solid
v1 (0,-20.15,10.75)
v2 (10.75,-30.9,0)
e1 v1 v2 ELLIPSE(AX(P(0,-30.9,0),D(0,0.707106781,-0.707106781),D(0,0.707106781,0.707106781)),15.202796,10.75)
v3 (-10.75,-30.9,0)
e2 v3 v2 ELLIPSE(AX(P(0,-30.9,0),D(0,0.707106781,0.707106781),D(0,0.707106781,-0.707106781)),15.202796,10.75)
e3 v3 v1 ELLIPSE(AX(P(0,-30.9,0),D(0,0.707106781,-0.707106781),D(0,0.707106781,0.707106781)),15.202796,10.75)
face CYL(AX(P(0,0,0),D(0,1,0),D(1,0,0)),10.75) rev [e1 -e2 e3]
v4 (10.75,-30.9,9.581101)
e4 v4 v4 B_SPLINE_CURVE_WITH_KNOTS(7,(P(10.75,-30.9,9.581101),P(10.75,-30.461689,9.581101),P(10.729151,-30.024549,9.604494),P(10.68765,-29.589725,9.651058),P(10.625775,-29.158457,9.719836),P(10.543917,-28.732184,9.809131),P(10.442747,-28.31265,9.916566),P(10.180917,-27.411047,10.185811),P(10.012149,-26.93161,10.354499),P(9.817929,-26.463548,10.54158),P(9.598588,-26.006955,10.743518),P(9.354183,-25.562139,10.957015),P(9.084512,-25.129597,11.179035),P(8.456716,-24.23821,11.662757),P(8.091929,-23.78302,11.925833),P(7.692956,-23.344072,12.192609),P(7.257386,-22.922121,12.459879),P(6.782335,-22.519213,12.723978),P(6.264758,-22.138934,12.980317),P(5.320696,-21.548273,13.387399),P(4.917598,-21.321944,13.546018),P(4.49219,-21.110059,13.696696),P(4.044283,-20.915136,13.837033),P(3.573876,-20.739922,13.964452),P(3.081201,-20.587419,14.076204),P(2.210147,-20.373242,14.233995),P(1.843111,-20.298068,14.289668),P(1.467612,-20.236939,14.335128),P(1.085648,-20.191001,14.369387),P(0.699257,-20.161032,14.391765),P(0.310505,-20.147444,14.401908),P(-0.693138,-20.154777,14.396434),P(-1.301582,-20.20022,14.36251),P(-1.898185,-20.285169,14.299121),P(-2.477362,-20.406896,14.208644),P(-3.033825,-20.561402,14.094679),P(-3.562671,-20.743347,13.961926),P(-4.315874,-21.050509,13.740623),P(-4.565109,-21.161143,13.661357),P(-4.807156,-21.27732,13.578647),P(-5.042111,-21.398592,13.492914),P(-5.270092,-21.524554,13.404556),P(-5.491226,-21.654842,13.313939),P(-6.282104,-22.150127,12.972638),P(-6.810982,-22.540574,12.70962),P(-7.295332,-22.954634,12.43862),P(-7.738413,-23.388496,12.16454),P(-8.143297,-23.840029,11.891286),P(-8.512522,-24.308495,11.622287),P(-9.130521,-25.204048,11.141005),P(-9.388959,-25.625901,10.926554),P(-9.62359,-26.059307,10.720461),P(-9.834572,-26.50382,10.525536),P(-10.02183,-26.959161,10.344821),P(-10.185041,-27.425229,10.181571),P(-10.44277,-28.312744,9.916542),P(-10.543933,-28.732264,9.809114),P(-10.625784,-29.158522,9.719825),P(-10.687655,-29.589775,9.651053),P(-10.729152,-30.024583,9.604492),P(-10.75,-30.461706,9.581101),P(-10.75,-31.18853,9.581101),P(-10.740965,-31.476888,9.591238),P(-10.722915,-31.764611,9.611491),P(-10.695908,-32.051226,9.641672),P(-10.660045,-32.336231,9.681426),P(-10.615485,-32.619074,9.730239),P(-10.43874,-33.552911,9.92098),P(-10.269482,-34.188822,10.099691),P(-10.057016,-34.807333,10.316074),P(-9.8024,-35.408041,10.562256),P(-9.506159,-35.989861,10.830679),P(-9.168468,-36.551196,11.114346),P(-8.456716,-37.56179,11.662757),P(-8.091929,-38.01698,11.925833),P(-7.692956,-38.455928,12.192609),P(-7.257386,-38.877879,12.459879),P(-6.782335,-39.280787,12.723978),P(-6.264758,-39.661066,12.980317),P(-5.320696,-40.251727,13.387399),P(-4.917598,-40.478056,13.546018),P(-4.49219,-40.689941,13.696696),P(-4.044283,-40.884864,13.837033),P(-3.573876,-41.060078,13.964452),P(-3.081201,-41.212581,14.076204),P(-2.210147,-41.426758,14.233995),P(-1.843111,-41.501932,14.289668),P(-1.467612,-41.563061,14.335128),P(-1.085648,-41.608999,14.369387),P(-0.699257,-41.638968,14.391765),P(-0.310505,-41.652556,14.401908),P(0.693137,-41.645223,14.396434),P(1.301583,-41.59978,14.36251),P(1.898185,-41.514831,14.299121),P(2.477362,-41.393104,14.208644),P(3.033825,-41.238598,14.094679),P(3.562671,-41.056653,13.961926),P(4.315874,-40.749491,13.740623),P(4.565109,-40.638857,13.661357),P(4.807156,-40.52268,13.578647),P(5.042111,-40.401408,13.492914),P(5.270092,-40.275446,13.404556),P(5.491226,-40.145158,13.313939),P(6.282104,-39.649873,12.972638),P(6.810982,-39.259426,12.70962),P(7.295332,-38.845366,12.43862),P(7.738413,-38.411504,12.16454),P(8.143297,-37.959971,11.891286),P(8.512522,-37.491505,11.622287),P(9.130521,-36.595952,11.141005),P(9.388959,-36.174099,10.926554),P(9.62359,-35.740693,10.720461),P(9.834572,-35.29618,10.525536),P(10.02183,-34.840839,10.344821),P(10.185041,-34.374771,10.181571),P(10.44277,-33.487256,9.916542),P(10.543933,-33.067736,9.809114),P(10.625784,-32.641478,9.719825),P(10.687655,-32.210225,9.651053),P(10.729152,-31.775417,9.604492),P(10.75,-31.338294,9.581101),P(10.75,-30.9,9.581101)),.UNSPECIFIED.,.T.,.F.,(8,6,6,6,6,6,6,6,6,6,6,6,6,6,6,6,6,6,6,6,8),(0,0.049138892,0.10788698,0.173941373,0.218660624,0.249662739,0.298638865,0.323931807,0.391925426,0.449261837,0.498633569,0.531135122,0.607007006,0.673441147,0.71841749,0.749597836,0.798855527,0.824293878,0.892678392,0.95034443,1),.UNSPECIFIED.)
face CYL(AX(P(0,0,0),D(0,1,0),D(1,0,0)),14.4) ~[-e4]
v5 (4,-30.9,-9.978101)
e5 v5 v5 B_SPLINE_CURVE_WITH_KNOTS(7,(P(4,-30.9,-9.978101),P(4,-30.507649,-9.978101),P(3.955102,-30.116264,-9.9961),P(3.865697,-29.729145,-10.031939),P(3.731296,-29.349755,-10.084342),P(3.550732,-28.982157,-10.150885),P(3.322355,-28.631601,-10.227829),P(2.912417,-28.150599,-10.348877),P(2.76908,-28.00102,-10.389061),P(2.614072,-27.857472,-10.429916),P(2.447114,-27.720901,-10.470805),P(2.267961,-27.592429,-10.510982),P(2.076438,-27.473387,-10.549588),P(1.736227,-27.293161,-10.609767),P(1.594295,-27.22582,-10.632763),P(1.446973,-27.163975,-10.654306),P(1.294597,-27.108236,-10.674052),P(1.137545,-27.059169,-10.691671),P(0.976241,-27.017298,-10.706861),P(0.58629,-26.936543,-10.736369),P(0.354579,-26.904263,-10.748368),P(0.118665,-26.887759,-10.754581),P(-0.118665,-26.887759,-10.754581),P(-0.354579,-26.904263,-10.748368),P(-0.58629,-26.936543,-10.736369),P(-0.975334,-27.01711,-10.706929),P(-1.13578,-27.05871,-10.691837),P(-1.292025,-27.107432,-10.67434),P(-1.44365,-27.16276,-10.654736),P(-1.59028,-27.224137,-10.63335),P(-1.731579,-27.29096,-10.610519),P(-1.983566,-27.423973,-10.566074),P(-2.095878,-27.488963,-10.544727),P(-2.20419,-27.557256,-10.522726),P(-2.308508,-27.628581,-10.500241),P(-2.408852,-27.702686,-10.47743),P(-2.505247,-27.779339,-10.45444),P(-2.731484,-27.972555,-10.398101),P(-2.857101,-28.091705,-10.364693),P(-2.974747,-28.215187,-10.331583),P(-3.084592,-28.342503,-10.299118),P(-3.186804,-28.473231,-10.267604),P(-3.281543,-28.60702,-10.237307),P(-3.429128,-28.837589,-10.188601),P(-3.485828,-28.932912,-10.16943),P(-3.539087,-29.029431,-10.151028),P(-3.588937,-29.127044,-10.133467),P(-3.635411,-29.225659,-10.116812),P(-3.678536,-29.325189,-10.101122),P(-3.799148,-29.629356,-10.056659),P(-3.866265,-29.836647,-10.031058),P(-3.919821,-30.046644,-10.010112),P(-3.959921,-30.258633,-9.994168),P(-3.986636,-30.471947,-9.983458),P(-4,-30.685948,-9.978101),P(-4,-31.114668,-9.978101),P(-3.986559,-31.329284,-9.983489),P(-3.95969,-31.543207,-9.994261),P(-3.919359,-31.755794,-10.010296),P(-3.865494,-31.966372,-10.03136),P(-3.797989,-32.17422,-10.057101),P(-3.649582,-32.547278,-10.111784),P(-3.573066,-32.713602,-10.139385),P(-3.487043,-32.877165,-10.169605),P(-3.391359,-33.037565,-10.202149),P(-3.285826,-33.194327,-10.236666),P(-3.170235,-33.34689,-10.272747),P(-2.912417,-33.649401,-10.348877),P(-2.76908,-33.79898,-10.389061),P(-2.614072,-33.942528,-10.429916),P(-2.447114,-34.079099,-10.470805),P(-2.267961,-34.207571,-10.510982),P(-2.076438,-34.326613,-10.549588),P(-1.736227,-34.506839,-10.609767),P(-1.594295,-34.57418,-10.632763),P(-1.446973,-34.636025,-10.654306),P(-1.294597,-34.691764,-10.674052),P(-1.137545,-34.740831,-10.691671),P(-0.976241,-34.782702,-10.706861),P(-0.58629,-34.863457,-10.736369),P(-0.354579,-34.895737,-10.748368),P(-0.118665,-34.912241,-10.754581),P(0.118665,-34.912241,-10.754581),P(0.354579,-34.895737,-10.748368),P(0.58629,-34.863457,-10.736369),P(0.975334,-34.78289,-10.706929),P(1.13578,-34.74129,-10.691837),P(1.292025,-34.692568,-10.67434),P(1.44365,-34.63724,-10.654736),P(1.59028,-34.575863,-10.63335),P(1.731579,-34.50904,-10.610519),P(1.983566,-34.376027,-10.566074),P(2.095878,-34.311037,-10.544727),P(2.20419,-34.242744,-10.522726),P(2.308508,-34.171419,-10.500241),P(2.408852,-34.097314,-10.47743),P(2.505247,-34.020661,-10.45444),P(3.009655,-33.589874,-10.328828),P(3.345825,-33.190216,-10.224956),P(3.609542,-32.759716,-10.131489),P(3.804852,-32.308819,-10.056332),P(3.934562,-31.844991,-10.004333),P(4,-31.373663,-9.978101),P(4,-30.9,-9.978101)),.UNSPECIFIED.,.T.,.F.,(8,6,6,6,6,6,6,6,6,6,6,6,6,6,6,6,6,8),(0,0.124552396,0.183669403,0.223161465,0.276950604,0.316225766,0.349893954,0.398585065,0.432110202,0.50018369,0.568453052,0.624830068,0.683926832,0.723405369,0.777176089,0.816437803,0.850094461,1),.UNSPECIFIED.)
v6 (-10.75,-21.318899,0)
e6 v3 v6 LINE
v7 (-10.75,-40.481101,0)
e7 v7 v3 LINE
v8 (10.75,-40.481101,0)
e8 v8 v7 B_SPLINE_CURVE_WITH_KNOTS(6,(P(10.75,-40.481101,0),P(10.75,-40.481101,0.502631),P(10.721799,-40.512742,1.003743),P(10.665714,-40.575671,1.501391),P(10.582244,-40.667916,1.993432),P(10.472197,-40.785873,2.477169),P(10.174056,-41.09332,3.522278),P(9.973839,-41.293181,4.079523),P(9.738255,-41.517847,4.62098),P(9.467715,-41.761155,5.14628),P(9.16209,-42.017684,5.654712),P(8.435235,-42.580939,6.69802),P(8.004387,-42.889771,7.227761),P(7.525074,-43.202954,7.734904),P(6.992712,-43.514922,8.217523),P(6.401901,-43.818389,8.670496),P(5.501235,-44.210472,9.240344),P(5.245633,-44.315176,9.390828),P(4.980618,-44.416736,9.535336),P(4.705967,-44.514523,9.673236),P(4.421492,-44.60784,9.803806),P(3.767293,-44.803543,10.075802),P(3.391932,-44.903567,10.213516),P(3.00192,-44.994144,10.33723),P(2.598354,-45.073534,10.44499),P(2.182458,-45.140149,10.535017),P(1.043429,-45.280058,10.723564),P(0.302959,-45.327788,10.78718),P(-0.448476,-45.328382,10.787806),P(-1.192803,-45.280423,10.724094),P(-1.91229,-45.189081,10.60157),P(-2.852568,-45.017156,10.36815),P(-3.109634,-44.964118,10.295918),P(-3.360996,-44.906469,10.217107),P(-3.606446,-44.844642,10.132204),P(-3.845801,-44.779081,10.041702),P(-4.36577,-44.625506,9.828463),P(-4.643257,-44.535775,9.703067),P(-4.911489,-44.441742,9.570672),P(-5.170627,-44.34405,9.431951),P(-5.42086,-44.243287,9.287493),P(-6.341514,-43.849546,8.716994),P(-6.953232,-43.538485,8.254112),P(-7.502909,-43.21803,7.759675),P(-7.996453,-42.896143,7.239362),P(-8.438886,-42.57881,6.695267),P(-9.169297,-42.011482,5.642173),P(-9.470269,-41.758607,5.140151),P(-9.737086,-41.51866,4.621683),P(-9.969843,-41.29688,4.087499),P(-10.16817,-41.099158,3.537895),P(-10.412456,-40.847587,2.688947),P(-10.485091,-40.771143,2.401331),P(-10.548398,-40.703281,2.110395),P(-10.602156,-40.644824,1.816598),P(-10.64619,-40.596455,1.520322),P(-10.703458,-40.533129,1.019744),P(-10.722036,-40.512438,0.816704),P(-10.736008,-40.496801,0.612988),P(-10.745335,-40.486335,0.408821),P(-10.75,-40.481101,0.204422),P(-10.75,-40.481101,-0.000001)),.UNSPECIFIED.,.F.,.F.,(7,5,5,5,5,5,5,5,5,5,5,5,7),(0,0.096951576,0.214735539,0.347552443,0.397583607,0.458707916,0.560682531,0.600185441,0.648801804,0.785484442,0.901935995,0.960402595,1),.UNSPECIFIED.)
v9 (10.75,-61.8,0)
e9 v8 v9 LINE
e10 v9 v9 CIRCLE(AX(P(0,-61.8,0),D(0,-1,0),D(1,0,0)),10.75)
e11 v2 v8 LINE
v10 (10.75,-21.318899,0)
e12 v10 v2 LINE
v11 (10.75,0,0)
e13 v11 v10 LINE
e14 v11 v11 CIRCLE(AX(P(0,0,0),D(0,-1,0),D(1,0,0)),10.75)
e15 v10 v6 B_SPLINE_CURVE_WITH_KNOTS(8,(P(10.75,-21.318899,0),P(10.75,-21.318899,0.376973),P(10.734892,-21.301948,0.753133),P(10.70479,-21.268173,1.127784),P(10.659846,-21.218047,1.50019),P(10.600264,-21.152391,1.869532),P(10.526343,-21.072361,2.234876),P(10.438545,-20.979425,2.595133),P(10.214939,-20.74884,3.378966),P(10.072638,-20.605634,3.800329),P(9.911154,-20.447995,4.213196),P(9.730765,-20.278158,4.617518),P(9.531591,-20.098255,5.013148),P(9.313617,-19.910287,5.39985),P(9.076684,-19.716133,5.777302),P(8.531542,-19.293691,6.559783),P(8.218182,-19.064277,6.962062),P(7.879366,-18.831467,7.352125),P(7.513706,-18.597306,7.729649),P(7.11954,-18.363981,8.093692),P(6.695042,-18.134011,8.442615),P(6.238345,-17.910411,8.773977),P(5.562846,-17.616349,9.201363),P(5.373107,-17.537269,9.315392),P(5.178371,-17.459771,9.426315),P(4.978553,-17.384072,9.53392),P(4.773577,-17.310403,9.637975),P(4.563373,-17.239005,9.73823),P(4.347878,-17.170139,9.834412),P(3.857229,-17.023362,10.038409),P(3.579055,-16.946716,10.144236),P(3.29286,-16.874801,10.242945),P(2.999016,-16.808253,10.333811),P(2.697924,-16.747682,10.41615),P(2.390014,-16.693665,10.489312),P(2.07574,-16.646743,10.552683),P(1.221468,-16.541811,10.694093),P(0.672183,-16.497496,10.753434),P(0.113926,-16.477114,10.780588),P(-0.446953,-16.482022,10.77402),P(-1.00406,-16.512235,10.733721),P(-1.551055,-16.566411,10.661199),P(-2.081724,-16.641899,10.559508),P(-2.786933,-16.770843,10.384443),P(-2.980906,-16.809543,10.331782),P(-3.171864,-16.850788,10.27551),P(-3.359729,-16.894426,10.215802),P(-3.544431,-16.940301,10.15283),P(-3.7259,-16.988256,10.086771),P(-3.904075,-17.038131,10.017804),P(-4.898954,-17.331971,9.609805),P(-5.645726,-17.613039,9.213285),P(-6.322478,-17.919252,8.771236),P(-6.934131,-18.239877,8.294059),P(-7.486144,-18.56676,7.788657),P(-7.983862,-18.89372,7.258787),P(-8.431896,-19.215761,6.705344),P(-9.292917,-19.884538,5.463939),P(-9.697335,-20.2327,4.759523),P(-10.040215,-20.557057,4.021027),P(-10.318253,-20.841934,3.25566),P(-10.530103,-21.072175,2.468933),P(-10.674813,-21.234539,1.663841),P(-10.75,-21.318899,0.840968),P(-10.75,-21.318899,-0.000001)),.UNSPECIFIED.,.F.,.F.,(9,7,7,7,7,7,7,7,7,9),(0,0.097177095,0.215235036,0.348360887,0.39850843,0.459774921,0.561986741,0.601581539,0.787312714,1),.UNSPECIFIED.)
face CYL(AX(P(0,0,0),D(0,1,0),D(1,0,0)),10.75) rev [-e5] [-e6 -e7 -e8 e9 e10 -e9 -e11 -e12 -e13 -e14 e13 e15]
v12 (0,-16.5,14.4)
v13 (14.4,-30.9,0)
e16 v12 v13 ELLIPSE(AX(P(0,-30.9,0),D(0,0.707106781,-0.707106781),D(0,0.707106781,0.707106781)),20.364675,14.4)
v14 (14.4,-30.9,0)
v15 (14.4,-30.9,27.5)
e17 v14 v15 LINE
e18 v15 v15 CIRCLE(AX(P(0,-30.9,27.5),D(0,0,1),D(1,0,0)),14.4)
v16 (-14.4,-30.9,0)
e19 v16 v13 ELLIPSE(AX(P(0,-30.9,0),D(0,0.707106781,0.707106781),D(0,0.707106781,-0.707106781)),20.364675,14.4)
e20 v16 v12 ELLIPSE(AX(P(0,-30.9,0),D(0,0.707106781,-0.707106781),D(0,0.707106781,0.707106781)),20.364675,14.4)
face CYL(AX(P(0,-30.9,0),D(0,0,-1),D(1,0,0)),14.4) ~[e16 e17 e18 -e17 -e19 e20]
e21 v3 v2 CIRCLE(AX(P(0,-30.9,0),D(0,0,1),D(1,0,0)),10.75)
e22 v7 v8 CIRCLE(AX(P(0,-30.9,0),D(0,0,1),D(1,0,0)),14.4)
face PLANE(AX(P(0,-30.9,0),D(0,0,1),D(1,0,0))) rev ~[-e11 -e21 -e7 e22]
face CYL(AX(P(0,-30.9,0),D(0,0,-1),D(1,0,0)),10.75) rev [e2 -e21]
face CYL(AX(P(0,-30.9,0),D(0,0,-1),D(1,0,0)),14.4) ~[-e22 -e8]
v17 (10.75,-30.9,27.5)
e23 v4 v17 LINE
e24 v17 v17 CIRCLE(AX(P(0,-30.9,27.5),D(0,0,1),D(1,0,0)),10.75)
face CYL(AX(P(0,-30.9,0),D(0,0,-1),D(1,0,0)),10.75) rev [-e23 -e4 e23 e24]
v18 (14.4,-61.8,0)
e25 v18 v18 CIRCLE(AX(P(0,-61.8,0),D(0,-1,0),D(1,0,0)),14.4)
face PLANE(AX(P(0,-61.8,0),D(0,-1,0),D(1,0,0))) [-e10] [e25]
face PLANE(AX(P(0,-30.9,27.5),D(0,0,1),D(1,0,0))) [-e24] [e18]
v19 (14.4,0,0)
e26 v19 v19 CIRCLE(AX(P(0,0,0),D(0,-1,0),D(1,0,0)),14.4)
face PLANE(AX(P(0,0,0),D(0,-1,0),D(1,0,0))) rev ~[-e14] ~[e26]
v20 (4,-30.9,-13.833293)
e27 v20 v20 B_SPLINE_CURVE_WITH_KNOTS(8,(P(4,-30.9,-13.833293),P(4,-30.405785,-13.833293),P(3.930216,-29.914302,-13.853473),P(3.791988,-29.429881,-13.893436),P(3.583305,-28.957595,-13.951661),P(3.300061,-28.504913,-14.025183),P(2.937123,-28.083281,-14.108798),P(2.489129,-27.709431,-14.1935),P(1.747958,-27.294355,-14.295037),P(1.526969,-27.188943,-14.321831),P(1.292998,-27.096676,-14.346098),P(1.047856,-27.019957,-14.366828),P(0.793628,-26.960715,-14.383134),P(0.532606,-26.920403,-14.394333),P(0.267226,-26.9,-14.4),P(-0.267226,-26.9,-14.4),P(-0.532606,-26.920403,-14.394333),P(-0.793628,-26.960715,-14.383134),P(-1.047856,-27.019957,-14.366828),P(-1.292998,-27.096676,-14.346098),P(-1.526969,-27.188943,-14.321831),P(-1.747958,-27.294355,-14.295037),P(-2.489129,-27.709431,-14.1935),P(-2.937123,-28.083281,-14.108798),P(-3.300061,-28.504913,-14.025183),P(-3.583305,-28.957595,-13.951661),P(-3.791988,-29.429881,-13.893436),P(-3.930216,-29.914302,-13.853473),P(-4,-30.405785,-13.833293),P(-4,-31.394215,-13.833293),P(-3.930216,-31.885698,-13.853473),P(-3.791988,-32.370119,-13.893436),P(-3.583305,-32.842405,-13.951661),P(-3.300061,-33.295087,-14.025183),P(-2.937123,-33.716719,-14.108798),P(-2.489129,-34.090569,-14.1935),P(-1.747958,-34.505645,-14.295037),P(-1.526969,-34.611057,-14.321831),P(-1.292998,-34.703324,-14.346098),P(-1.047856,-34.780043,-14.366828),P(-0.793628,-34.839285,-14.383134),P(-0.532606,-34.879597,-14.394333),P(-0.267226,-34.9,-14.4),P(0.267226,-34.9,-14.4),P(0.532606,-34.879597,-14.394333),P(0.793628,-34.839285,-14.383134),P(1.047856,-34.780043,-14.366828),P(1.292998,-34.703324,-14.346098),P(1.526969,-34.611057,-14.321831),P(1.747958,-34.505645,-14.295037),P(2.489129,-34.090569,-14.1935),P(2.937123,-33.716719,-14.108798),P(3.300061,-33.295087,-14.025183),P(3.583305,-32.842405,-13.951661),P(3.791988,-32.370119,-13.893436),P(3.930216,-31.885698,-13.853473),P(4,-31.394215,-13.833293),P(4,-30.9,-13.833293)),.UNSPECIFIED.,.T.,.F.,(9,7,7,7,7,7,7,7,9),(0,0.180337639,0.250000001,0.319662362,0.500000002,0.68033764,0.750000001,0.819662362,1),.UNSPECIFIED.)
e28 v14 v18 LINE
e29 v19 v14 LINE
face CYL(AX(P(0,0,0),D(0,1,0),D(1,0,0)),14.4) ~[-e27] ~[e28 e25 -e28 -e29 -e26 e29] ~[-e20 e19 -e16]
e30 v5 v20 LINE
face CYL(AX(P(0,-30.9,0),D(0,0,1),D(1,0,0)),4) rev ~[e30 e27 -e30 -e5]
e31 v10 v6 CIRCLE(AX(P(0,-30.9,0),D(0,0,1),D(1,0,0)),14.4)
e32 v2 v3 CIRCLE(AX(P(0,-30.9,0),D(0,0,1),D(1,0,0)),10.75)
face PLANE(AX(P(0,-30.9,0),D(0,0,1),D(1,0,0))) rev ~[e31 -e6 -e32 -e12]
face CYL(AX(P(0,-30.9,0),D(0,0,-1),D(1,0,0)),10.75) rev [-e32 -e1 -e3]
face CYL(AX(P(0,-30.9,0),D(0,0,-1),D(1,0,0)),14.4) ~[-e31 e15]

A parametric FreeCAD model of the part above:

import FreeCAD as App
import Part
import Sketcher
from FreeCAD import Vector
Q = App.Units.Quantity

doc = App.newDocument("Part")
params = doc.addObject("Spreadsheet::Sheet", "Params")
for row, (alias, value) in enumerate([
    ("sketch1_diameter", "28.8 mm"),
    ("sketch1_diameter2", "21.5 mm"),
    ("pad1_length", "61.8 mm"),
    ("sketch2_diameter", "28.8 mm"),
    ("sketch2_diameter2", "21.5 mm"),
    ("pad2_length", "27.5 mm"),
    ("sketch3_diameter", "8 mm"),
], start=1):
    params.set(f"A{row}", alias)
    params.set(f"B{row}", "=" + value)
    params.setAlias(f"B{row}", alias)

body = doc.addObject("PartDesign::Body", "Body")

# Sketch on XZ plane
sketch1 = doc.addObject("Sketcher::SketchObject", "Sketch")
body.addObject(sketch1)
sketch1.AttachmentSupport = (doc.XZ_Plane, [""])
sketch1.MapMode = "FlatFace"
sketch1.addGeometry([
    Part.Circle(Vector(0, 0, 0), Vector(0, 0, 1), 14),
    Part.Circle(Vector(0, 0, 0), Vector(0, 0, 1), 11),
], False)
sketch1.addConstraint([
    Sketcher.Constraint("Coincident", 0, 3, -1, 1),
    Sketcher.Constraint("Coincident", 1, 3, -1, 1),
    Sketcher.Constraint("Diameter", 0, Q("28.8 mm")),
    Sketcher.Constraint("Diameter", 1, Q("21.5 mm")),
])
sketch1.setExpression("Constraints[2]", "Params.sketch1_diameter")
sketch1.setExpression("Constraints[3]", "Params.sketch1_diameter2")
pad1 = doc.addObject("PartDesign::Pad", "Pad")
body.addObject(pad1)
pad1.Profile = sketch1
pad1.setExpression("Length", "Params.pad1_length")

# Sketch on XY plane
sketch2 = doc.addObject("Sketcher::SketchObject", "Sketch001")
body.addObject(sketch2)
sketch2.AttachmentSupport = (doc.XY_Plane, [""])
sketch2.MapMode = "FlatFace"
sketch2.addGeometry([
    Part.Circle(Vector(0, -31, 0), Vector(0, 0, 1), 14),
    Part.Circle(Vector(0, -31, 0), Vector(0, 0, 1), 11),
], False)
sketch2.addConstraint([
    Sketcher.Constraint("Coincident", 1, 3, 0, 3),
    Sketcher.Constraint("PointOnObject", 0, 3, -2),
    Sketcher.Constraint("Diameter", 0, Q("28.8 mm")),
    Sketcher.Constraint("Diameter", 1, Q("21.5 mm")),
    Sketcher.Constraint("DistanceY", 0, 3, -1, 1, Q("30.9 mm")),
])
sketch2.setExpression("Constraints[2]", "Params.sketch2_diameter")
sketch2.setExpression("Constraints[3]", "Params.sketch2_diameter2")
pad2 = doc.addObject("PartDesign::Pad", "Pad001")
body.addObject(pad2)
pad2.Profile = sketch2
pad2.setExpression("Length", "Params.pad2_length")

# Sketch on XY plane
sketch3 = doc.addObject("Sketcher::SketchObject", "Sketch002")
body.addObject(sketch3)
sketch3.AttachmentSupport = (doc.XY_Plane, [""])
sketch3.MapMode = "FlatFace"
sketch3.addGeometry(Part.Circle(Vector(0, -30.9, 0), Vector(0, 0, 1), 4), False)
sketch3.addConstraint([
    Sketcher.Constraint("PointOnObject", 0, 3, -2),
    Sketcher.Constraint("Diameter", 0, Q("8 mm")),
    Sketcher.Constraint("DistanceY", 0, 3, -1, 1, Q("30.9 mm")),
])
sketch3.setExpression("Constraints[1]", "Params.sketch3_diameter")
pocket1 = doc.addObject("PartDesign::Pocket", "Pocket")
body.addObject(pocket1)
pocket1.Profile = sketch3
pocket1.Type = "ThroughAll"

doc.recompute()
